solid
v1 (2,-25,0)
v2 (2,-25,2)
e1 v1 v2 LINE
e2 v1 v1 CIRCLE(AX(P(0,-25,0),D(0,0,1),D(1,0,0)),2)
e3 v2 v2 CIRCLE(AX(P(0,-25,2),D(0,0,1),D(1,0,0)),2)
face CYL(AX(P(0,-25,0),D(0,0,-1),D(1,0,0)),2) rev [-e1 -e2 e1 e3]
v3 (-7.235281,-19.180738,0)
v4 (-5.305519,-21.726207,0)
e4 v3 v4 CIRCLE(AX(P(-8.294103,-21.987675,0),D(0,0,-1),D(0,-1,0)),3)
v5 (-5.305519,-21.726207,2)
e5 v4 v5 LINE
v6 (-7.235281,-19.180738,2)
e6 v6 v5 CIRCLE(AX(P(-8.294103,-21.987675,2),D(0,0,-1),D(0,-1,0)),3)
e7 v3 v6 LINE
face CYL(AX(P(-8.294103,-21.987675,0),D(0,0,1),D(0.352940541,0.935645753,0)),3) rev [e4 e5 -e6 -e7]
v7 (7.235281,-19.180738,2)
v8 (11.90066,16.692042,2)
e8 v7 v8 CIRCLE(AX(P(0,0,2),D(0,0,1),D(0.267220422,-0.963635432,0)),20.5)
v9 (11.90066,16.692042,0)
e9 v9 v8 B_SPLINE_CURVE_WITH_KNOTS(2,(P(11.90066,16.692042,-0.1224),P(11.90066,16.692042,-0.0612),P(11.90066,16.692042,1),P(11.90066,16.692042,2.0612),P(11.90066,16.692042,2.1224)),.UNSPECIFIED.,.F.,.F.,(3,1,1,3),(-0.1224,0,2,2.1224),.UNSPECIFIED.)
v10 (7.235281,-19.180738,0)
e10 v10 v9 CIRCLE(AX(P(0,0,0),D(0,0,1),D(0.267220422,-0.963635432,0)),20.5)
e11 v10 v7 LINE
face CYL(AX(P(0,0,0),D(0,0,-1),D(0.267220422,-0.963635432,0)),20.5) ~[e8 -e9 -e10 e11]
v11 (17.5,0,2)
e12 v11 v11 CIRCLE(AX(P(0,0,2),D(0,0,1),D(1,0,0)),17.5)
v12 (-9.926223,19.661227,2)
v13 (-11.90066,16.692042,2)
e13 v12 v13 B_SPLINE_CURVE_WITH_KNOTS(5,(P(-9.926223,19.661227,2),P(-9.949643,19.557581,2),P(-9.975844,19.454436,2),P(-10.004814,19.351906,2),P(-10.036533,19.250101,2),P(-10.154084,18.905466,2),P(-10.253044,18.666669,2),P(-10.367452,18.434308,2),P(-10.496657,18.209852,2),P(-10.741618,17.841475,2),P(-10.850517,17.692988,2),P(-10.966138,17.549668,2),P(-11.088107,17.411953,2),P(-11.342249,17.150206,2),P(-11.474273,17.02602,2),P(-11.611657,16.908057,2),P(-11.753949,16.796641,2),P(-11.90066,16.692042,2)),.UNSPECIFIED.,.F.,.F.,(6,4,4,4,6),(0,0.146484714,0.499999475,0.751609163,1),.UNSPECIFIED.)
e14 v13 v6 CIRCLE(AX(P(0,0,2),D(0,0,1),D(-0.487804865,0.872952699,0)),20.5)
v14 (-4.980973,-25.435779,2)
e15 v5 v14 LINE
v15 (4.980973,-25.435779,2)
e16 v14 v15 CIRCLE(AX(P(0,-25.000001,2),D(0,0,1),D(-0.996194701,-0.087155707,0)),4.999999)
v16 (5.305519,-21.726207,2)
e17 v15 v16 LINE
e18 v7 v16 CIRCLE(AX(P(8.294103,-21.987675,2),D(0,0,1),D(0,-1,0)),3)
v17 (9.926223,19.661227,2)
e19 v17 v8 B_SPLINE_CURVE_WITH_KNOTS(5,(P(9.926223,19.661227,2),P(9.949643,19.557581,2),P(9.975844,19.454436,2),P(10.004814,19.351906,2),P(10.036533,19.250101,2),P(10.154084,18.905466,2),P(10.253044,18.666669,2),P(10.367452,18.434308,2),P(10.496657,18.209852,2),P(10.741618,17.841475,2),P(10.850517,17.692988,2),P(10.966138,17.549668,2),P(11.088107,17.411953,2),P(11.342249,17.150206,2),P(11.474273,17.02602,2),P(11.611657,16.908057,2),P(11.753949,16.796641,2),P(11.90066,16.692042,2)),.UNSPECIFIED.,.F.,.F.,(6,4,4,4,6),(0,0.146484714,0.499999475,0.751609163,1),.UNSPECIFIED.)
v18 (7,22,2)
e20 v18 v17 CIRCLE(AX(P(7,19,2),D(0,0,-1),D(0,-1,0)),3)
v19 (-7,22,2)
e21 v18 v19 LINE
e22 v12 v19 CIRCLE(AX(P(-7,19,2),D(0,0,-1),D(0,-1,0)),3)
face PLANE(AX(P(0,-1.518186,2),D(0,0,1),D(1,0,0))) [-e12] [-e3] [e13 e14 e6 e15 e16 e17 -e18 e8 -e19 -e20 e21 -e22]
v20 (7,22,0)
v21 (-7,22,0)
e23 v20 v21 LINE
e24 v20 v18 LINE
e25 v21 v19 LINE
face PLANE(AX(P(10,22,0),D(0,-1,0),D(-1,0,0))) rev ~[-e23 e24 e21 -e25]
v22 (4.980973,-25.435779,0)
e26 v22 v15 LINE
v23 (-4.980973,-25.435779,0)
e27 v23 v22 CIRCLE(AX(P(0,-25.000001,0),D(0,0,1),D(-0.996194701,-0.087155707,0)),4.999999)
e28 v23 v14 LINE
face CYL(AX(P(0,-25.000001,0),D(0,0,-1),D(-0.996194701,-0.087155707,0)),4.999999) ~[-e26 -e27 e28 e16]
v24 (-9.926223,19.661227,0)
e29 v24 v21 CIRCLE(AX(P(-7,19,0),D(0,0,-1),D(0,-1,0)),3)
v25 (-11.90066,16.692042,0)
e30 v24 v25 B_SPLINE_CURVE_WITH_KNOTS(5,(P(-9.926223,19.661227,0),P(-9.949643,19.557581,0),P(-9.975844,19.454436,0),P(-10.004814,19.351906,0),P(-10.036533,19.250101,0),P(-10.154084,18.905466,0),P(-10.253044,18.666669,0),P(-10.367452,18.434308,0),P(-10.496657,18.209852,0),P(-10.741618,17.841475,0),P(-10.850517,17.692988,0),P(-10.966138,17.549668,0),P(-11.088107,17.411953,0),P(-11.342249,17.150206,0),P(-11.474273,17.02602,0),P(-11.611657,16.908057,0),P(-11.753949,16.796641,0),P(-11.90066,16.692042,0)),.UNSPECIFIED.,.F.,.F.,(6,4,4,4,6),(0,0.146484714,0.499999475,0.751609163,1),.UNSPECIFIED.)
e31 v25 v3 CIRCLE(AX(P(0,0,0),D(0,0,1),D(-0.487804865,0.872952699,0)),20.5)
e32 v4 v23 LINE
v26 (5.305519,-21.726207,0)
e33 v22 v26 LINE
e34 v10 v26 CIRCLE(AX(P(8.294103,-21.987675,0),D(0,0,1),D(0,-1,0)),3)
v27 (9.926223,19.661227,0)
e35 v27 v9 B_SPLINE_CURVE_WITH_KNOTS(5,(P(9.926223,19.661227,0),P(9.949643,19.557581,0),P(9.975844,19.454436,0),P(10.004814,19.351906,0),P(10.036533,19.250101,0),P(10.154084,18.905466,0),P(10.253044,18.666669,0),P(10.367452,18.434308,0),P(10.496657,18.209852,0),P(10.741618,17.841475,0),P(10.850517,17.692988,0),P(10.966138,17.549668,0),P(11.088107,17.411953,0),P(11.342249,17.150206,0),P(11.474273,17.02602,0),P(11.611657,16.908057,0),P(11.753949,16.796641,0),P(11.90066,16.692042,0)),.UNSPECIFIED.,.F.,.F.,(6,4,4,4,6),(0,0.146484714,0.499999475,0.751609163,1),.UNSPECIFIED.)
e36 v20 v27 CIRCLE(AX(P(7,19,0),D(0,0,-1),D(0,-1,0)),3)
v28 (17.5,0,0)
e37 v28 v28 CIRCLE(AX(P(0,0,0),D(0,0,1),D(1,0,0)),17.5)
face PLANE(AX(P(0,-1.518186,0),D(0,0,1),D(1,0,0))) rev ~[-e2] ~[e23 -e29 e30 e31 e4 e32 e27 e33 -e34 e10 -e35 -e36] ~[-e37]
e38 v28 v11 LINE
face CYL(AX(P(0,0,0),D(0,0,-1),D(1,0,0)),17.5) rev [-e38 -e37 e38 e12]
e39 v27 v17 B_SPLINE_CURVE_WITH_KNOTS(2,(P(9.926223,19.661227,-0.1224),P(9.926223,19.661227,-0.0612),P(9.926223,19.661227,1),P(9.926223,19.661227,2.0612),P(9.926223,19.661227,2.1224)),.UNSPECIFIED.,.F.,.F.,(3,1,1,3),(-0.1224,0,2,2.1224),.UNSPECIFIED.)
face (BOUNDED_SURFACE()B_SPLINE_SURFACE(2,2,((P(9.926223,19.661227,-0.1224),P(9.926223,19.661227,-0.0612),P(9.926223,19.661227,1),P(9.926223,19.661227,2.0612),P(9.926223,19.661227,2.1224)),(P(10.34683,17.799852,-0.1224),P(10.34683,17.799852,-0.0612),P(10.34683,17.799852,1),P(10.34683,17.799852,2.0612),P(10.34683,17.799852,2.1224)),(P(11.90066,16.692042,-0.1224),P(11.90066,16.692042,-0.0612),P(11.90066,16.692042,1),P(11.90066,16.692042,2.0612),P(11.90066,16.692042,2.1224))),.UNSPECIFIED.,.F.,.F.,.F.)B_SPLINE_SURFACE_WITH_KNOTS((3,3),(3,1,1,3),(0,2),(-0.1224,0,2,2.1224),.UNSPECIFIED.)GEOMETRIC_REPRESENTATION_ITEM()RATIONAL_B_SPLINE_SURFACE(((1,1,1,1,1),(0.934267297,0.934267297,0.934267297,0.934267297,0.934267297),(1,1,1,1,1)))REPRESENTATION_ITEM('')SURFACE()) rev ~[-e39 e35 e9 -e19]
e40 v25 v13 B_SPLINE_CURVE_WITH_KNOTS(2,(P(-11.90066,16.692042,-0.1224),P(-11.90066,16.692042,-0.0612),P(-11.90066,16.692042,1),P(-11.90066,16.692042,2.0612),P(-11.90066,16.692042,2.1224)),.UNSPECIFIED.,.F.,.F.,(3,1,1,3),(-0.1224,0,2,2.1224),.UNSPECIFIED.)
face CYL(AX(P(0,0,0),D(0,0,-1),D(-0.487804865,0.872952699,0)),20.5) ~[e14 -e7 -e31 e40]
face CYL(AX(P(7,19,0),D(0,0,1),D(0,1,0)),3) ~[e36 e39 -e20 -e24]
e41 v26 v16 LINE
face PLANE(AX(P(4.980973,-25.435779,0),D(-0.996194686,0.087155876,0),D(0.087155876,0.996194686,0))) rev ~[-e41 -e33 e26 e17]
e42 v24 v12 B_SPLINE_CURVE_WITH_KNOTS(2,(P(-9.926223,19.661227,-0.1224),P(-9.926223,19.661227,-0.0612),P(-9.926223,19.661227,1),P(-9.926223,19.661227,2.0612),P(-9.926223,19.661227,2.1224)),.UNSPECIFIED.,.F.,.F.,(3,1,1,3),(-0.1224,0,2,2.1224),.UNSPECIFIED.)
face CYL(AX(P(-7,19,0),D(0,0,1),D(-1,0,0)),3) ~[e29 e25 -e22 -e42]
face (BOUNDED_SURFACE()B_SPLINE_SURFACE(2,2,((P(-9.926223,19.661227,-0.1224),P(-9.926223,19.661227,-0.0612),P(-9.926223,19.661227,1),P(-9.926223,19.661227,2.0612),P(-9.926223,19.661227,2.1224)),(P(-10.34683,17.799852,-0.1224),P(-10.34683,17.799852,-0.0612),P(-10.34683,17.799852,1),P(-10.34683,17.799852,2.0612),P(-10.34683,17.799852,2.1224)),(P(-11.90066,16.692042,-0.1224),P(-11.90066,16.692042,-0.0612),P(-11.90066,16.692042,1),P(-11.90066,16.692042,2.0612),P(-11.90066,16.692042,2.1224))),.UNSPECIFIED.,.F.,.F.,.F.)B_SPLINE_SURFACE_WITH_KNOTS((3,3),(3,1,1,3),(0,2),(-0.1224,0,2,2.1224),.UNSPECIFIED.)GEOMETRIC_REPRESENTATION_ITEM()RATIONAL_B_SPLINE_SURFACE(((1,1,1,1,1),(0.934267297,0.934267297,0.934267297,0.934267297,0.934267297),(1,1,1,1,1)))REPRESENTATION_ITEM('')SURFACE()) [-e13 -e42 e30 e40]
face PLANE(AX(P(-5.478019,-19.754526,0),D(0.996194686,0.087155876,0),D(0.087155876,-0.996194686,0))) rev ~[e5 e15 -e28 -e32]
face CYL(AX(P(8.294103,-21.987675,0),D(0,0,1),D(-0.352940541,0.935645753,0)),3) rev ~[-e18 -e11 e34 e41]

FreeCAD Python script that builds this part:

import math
import FreeCAD as App
import Part
import Sketcher

V = App.Vector
Q = App.Units.Quantity


def edges_at(feature, points):
    """Names of the edges that pass closest to the given points."""
    edges = feature.Shape.Edges
    near = lambda p: min(range(len(edges)), key=lambda i: edges[i].distToShape(Part.Vertex(*p))[0])
    return sorted({f"Edge{near(p) + 1}" for p in points})

doc = App.newDocument("Part")
body = doc.addObject("PartDesign::Body", "Body")

# Sketch on XY plane
sketch1 = doc.addObject("Sketcher::SketchObject", "Sketch")
body.addObject(sketch1)
sketch1.AttachmentSupport = (doc.XY_Plane, [""])
sketch1.MapMode = "FlatFace"
sketch1.addGeometry([
    Part.LineSegment(V(-10, 22, 0), V(-10, 17.9, 0)),  # 0
    Part.ArcOfCircle(Part.Circle(V(0, 0, 0), V(0, 0, 1), 20.5), math.radians(119), math.radians(255)),  # 1
    Part.LineSegment(V(-5.5, -19.8, 0), V(-5, -25.4, 0)),  # 2
    Part.ArcOfCircle(Part.Circle(V(0, -25, 0), V(0, 0, 1), 5), math.radians(-175), math.radians(-5)),  # 3
    Part.LineSegment(V(5, -25.4, 0), V(5.5, -19.8, 0)),  # 4
    Part.ArcOfCircle(Part.Circle(V(0, 0, 0), V(0, 0, 1), 20.5), math.radians(-75), math.radians(61)),  # 5
    Part.LineSegment(V(10, 17.9, 0), V(10, 22, 0)),  # 6
    Part.LineSegment(V(10, 22, 0), V(-10, 22, 0)),  # 7
    Part.Circle(V(0, -25, 0), V(0, 0, 1), 2),  # 8
    Part.Circle(V(0, 0, 0), V(0, 0, 1), 17.5),  # 9
], False)
sketch1.addConstraint([
    Sketcher.Constraint("Coincident", 0, 2, 1, 1),
    Sketcher.Constraint("Coincident", 1, 2, 2, 1),
    Sketcher.Constraint("Tangent", 2, 2, 3, 1),
    Sketcher.Constraint("Tangent", 3, 2, 4, 1),
    Sketcher.Constraint("Coincident", 4, 2, 5, 1),
    Sketcher.Constraint("Coincident", 5, 2, 6, 1),
    Sketcher.Constraint("Coincident", 6, 2, 7, 1),
    Sketcher.Constraint("Coincident", 7, 2, 0, 1),
    Sketcher.Constraint("Vertical", 0),
    Sketcher.Constraint("Vertical", 6),
    Sketcher.Constraint("Horizontal", 7),
    Sketcher.Constraint("Coincident", 1, 3, -1, 1),
    Sketcher.Constraint("Coincident", 5, 3, -1, 1),
    Sketcher.Constraint("Coincident", 9, 3, -1, 1),
    Sketcher.Constraint("Coincident", 8, 3, 3, 3),
    Sketcher.Constraint("Equal", 1, 5),
    Sketcher.Constraint("Symmetric", 2, 2, 3, 2, -2),
    Sketcher.Constraint("Horizontal", 0, 2, 5, 2),
    Sketcher.Constraint("Diameter", 8, 4.0),
    Sketcher.Constraint("Diameter", 9, 35.0),
    Sketcher.Constraint("Radius", 3, 4.999999),
    Sketcher.Constraint("Radius", 1, 20.5),
    Sketcher.Constraint("DistanceX", 7, 2, 7, 1, 20.0),
    Sketcher.Constraint("Angle", 2, Q("-84.999992 deg")),
    Sketcher.Constraint("DistanceY", 3, 3, -1, 1, 25.000001),
    Sketcher.Constraint("DistanceY", -1, 1, 6, 2, 22.0),
])
pad1 = doc.addObject("PartDesign::Pad", "Pad")
body.addObject(pad1)
pad1.Profile = sketch1
pad1.Length = 2
doc.recompute()

fillet = doc.addObject("PartDesign::Fillet", "Fillet")
body.addObject(fillet)
fillet.Base = (pad1, edges_at(pad1, [
    (-10, 22, 1),
    (10, 22, 1),
    (-5.478, -19.755, 1),
    (5.478, -19.755, 1),
]))
fillet.Radius = 3
doc.recompute()

fillet2 = doc.addObject("PartDesign::Fillet", "Fillet001")
body.addObject(fillet2)
fillet2.Base = (fillet, edges_at(fillet, [(-10, 17.896, 1), (10, 17.896, 1)]))
fillet2.Radius = 5

doc.recompute()
